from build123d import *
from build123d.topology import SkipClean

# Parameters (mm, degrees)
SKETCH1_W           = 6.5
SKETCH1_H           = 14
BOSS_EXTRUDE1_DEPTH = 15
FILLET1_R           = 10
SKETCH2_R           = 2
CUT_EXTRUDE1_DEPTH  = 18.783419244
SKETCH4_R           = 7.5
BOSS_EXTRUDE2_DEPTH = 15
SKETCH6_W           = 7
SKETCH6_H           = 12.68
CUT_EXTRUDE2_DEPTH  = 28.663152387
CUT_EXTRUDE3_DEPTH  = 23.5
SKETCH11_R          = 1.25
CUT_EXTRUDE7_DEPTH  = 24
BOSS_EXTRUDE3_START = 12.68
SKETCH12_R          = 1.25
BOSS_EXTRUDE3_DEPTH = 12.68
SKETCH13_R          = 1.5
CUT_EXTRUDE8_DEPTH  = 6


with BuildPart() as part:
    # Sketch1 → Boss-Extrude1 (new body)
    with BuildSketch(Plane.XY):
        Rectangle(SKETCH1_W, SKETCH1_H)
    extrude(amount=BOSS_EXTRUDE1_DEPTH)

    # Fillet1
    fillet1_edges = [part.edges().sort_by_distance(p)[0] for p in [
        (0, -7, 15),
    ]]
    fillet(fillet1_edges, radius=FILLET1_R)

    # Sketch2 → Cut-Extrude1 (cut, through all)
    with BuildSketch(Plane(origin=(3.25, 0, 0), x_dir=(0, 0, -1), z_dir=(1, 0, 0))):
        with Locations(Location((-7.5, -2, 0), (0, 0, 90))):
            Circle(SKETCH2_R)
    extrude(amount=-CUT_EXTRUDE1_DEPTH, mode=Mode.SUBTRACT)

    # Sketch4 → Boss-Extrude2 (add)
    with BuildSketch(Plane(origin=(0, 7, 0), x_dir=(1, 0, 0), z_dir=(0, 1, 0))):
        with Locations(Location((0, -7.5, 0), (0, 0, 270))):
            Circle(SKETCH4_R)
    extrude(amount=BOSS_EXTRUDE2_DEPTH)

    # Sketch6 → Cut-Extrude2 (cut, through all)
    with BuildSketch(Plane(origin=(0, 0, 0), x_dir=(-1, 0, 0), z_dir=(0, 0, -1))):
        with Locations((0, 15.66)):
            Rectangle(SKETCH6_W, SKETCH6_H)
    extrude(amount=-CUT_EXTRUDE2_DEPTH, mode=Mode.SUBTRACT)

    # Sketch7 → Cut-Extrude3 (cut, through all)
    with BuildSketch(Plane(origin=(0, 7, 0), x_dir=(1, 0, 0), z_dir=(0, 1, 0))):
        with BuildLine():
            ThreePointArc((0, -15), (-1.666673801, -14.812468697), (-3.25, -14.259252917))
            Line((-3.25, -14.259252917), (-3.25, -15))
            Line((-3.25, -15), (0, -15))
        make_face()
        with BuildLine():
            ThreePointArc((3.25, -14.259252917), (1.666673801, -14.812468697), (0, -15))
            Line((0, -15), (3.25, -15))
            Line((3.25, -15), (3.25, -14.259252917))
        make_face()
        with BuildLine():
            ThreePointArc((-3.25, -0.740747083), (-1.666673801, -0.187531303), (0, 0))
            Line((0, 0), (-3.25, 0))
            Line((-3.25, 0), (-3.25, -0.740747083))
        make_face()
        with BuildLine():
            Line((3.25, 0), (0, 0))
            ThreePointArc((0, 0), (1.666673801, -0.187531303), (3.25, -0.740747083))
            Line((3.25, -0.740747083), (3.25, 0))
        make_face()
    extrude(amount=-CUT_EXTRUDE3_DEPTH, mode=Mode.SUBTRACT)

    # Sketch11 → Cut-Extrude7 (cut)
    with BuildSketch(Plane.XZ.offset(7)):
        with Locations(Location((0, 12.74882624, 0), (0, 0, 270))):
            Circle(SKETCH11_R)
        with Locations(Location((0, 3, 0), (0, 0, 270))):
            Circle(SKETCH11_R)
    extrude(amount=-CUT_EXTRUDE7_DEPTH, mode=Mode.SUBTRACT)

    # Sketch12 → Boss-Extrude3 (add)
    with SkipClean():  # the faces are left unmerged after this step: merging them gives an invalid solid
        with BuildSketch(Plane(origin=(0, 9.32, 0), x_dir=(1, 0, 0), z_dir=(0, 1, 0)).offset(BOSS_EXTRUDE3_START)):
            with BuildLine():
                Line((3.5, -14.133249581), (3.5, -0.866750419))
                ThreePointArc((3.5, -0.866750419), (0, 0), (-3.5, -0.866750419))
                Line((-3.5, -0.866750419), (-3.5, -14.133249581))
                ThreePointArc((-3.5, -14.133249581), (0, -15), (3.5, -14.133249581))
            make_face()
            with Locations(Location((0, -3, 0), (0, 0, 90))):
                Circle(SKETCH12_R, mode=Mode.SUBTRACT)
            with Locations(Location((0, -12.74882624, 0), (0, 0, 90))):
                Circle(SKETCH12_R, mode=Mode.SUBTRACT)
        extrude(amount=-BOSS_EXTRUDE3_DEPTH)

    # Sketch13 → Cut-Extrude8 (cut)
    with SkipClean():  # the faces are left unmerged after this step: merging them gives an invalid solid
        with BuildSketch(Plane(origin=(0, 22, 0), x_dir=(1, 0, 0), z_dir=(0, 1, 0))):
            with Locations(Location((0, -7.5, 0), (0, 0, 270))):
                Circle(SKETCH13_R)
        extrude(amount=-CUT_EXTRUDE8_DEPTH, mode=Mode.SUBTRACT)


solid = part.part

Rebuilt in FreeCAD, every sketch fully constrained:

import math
import FreeCAD as App
import Part
import Sketcher
from FreeCAD import Vector


def edges_at(feature, points):
    """Names of the edges that pass closest to the given points."""
    edges = feature.Shape.Edges
    near = lambda p: min(range(len(edges)), key=lambda i: edges[i].distToShape(Part.Vertex(*p))[0])
    return sorted({f"Edge{near(p) + 1}" for p in points})


def add_polygon(sketch, points):
    """Adds a closed chain of lines whose ends are joined by coincident constraints."""
    first, n = sketch.GeometryCount, len(points)
    for a, b in zip(points, points[1:] + points[:1]):
        sketch.addGeometry(Part.LineSegment(App.Vector(*a, 0), App.Vector(*b, 0)), False)
    for i in range(n):
        sketch.addConstraint(Sketcher.Constraint("Coincident", first + i, 2, first + (i + 1) % n, 1))

doc = App.newDocument("Part")
body = doc.addObject("PartDesign::Body", "Body")

# Sketch on XY plane
sketch1 = doc.addObject("Sketcher::SketchObject", "Sketch")
body.addObject(sketch1)
sketch1.AttachmentSupport = (doc.XY_Plane, [""])
sketch1.MapMode = "FlatFace"
add_polygon(sketch1, [(-3.25, 7), (-3.25, -7), (3.25, -7), (3.25, 7)])  # lines 0-3
sketch1.addConstraint([
    Sketcher.Constraint("Vertical", 0),
    Sketcher.Constraint("Horizontal", 1),
    Sketcher.Constraint("Vertical", 2),
    Sketcher.Constraint("Horizontal", 3),
    Sketcher.Constraint("Symmetric", 0, 2, 2, 2, -1, 1),
    Sketcher.Constraint("DistanceY", 0, 2, 0, 1, 14.0),
    Sketcher.Constraint("DistanceX", 1, 1, 1, 2, 6.5),
])
pad1 = doc.addObject("PartDesign::Pad", "Pad")
body.addObject(pad1)
pad1.Profile = sketch1
pad1.Length = 15
doc.recompute()

fillet = doc.addObject("PartDesign::Fillet", "Fillet")
body.addObject(fillet)
fillet.Base = (pad1, edges_at(pad1, [(0, -7, 15)]))
fillet.Radius = 10

# Sketch on YZ plane
sketch2 = doc.addObject("Sketcher::SketchObject", "Sketch001")
body.addObject(sketch2)
sketch2.AttachmentSupport = (doc.YZ_Plane, [""])
sketch2.MapMode = "FlatFace"
sketch2.AttachmentOffset = App.Placement(Vector(0, 0, 3.25), App.Rotation())
sketch2.addGeometry(Part.Circle(Vector(-2, 7.5, 0), Vector(0, 0, 1), 2), False)
sketch2.addConstraint([
    Sketcher.Constraint("Diameter", 0, 4.0),
    Sketcher.Constraint("DistanceX", 0, 3, -1, 1, 2.0),
    Sketcher.Constraint("DistanceY", -1, 1, 0, 3, 7.5),
])
pocket1 = doc.addObject("PartDesign::Pocket", "Pocket")
body.addObject(pocket1)
pocket1.Profile = sketch2
pocket1.Type = "ThroughAll"

# Sketch on XZ plane
sketch3 = doc.addObject("Sketcher::SketchObject", "Sketch002")
body.addObject(sketch3)
sketch3.AttachmentSupport = (doc.XZ_Plane, [""])
sketch3.MapMode = "FlatFace"
sketch3.AttachmentOffset = App.Placement(Vector(0, 0, -7), App.Rotation())
sketch3.addGeometry(Part.Circle(Vector(0, 7.5, 0), Vector(0, 0, 1), 7.5), False)
sketch3.addConstraint([
    Sketcher.Constraint("PointOnObject", 0, 3, -2),
    Sketcher.Constraint("Diameter", 0, 15.0),
    Sketcher.Constraint("DistanceY", -1, 1, 0, 3, 7.5),
])
pad2 = doc.addObject("PartDesign::Pad", "Pad001")
body.addObject(pad2)
pad2.Profile = sketch3
pad2.Length = 15
pad2.Reversed = True

# Sketch on XY plane
sketch4 = doc.addObject("Sketcher::SketchObject", "Sketch003")
body.addObject(sketch4)
sketch4.AttachmentSupport = (doc.XY_Plane, [""])
sketch4.MapMode = "FlatFace"
add_polygon(sketch4, [(3.5, 22), (3.5, 9.32), (-3.5, 9.32), (-3.5, 22)])  # lines 0-3
sketch4.addConstraint([
    Sketcher.Constraint("Vertical", 0),
    Sketcher.Constraint("Horizontal", 1),
    Sketcher.Constraint("Vertical", 2),
    Sketcher.Constraint("Horizontal", 3),
    Sketcher.Constraint("DistanceX", 1, 2, 1, 1, 7.0),
    Sketcher.Constraint("DistanceY", -1, 1, 2, 2, 22.0),
    Sketcher.Constraint("DistanceY", 0, 2, 0, 1, 12.68),
    Sketcher.Constraint("DistanceX", -1, 1, 0, 2, 3.5),
])
pocket2 = doc.addObject("PartDesign::Pocket", "Pocket001")
body.addObject(pocket2)
pocket2.Profile = sketch4
pocket2.Type = "ThroughAll"
pocket2.Reversed = True

# Sketch on XZ plane
sketch5 = doc.addObject("Sketcher::SketchObject", "Sketch004")
body.addObject(sketch5)
sketch5.AttachmentSupport = (doc.XZ_Plane, [""])
sketch5.MapMode = "FlatFace"
sketch5.AttachmentOffset = App.Placement(Vector(0, 0, -7), App.Rotation())
sketch5.addGeometry([
    Part.ArcOfCircle(Part.Circle(Vector(0, 7.5, 0), Vector(0, 0, 1), 7.5), math.radians(90), math.radians(115.679289)),  # 0
    Part.LineSegment(Vector(-3.25, 14.259253, 0), Vector(-3.25, 15, 0)),  # 1
    Part.LineSegment(Vector(-3.25, 15, 0), Vector(0, 15, 0)),  # 2
    Part.ArcOfCircle(Part.Circle(Vector(0, 7.5, 0), Vector(0, 0, 1), 7.5), math.radians(64.320711), math.radians(90)),  # 3
    Part.LineSegment(Vector(0, 15, 0), Vector(3.25, 15, 0)),  # 4
    Part.LineSegment(Vector(3.25, 15, 0), Vector(3.25, 14.259253, 0)),  # 5
    Part.ArcOfCircle(Part.Circle(Vector(0, 7.5, 0), Vector(0, 0, 1), 7.5), math.radians(-115.679289), math.radians(-90)),  # 6
    Part.LineSegment(Vector(0, 0, 0), Vector(-3.25, 0, 0)),  # 7
    Part.LineSegment(Vector(-3.25, 0, 0), Vector(-3.25, 0.740747, 0)),  # 8
    Part.LineSegment(Vector(3.25, 0, 0), Vector(0, 0, 0)),  # 9
    Part.ArcOfCircle(Part.Circle(Vector(0, 7.5, 0), Vector(0, 0, 1), 7.5), math.radians(-90), math.radians(-64.320711)),  # 10
    Part.LineSegment(Vector(3.25, 0.740747, 0), Vector(3.25, 0, 0)),  # 11
], False)
sketch5.addConstraint([
    Sketcher.Constraint("Coincident", 0, 2, 1, 1),
    Sketcher.Constraint("Coincident", 1, 2, 2, 1),
    Sketcher.Constraint("Tangent", 2, 2, 0, 1),
    Sketcher.Constraint("Tangent", 3, 2, 4, 1),
    Sketcher.Constraint("Coincident", 4, 2, 5, 1),
    Sketcher.Constraint("Coincident", 5, 2, 3, 1),
    Sketcher.Constraint("Tangent", 6, 2, 7, 1),
    Sketcher.Constraint("Coincident", 7, 2, 8, 1),
    Sketcher.Constraint("Coincident", 8, 2, 6, 1),
    Sketcher.Constraint("Tangent", 9, 2, 10, 1),
    Sketcher.Constraint("Coincident", 10, 2, 11, 1),
    Sketcher.Constraint("Coincident", 11, 2, 9, 1),
    Sketcher.Constraint("Vertical", 1),
    Sketcher.Constraint("Horizontal", 2),
    Sketcher.Constraint("Horizontal", 4),
    Sketcher.Constraint("Vertical", 5),
    Sketcher.Constraint("Horizontal", 7),
    Sketcher.Constraint("Vertical", 8),
    Sketcher.Constraint("Horizontal", 9),
    Sketcher.Constraint("Vertical", 11),
    Sketcher.Constraint("Coincident", 6, 2, -1, 1),
    Sketcher.Constraint("Coincident", 9, 2, -1, 1),
    Sketcher.Constraint("Coincident", 3, 3, 0, 3),
    Sketcher.Constraint("Coincident", 6, 3, 0, 3),
    Sketcher.Constraint("Equal", 0, 3),
    Sketcher.Constraint("Equal", 3, 6),
    Sketcher.Constraint("Equal", 6, 10),
    Sketcher.Constraint("Horizontal", 0, 2, 5, 2),
    Sketcher.Constraint("Horizontal", 8, 2, 10, 2),
    Sketcher.Constraint("Vertical", 1, 2, 7, 2),
    Sketcher.Constraint("Radius", 0, 7.5),
    Sketcher.Constraint("DistanceX", 2, 1, 2, 2, 3.25),
])
pocket3 = doc.addObject("PartDesign::Pocket", "Pocket002")
body.addObject(pocket3)
pocket3.Profile = sketch5
pocket3.Type = "ThroughAll"
pocket3.Reversed = True

# Sketch on XZ plane
sketch6 = doc.addObject("Sketcher::SketchObject", "Sketch005")
body.addObject(sketch6)
sketch6.AttachmentSupport = (doc.XZ_Plane, [""])
sketch6.MapMode = "FlatFace"
sketch6.AttachmentOffset = App.Placement(Vector(0, 0, 7), App.Rotation())
sketch6.addGeometry([
    Part.Circle(Vector(0, 12.748826, 0), Vector(0, 0, 1), 1.25),
    Part.Circle(Vector(0, 3, 0), Vector(0, 0, 1), 1.25),
], False)
sketch6.addConstraint([
    Sketcher.Constraint("Equal", 0, 1),
    Sketcher.Constraint("PointOnObject", 0, 3, -2),
    Sketcher.Constraint("PointOnObject", 1, 3, -2),
    Sketcher.Constraint("Diameter", 0, 2.5),
    Sketcher.Constraint("DistanceY", -1, 1, 1, 3, 3.0),
    Sketcher.Constraint("DistanceY", -1, 1, 0, 3, 12.748826),
])
pocket4 = doc.addObject("PartDesign::Pocket", "Pocket003")
body.addObject(pocket4)
pocket4.Profile = sketch6
pocket4.Length = 24

# Sketch on XZ plane
sketch7 = doc.addObject("Sketcher::SketchObject", "Sketch006")
body.addObject(sketch7)
sketch7.AttachmentSupport = (doc.XZ_Plane, [""])
sketch7.MapMode = "FlatFace"
sketch7.AttachmentOffset = App.Placement(Vector(0, 0, -22), App.Rotation())
sketch7.addGeometry([
    Part.LineSegment(Vector(3.5, 14.13325, 0), Vector(3.5, 0.86675, 0)),  # 0
    Part.ArcOfCircle(Part.Circle(Vector(0, 7.5, 0), Vector(0, 0, 1), 7.5), math.radians(-117.818139), math.radians(-62.181861)),  # 1
    Part.LineSegment(Vector(-3.5, 0.86675, 0), Vector(-3.5, 14.13325, 0)),  # 2
    Part.ArcOfCircle(Part.Circle(Vector(0, 7.5, 0), Vector(0, 0, 1), 7.5), math.radians(62.181861), math.radians(117.818139)),  # 3
    Part.Circle(Vector(0, 12.748826, 0), Vector(0, 0, 1), 1.25),  # 4
    Part.Circle(Vector(0, 3, 0), Vector(0, 0, 1), 1.25),  # 5
], False)
sketch7.addConstraint([
    Sketcher.Constraint("Coincident", 0, 2, 1, 2),
    Sketcher.Constraint("Coincident", 1, 1, 2, 1),
    Sketcher.Constraint("Coincident", 2, 2, 3, 2),
    Sketcher.Constraint("Coincident", 3, 1, 0, 1),
    Sketcher.Constraint("Vertical", 0),
    Sketcher.Constraint("Vertical", 2),
    Sketcher.Constraint("Coincident", 3, 3, 1, 3),
    Sketcher.Constraint("Equal", 1, 3),
    Sketcher.Constraint("Equal", 4, 5),
    Sketcher.Constraint("Symmetric", 0, 2, 1, 1, -2),
    Sketcher.Constraint("PointOnObject", 4, 3, -2),
    Sketcher.Constraint("PointOnObject", 5, 3, -2),
    Sketcher.Constraint("Diameter", 4, 2.5),
    Sketcher.Constraint("Radius", 1, 7.5),
    Sketcher.Constraint("DistanceY", -1, 1, 5, 3, 3.0),
    Sketcher.Constraint("DistanceX", 1, 1, 0, 2, 7.0),
    Sketcher.Constraint("DistanceY", -1, 1, 1, 3, 7.5),
    Sketcher.Constraint("DistanceY", -1, 1, 4, 3, 12.748826),
])
pad3 = doc.addObject("PartDesign::Pad", "Pad002")
body.addObject(pad3)
pad3.Profile = sketch7
pad3.Length = 12.68

# Sketch on XZ plane
sketch8 = doc.addObject("Sketcher::SketchObject", "Sketch007")
body.addObject(sketch8)
sketch8.AttachmentSupport = (doc.XZ_Plane, [""])
sketch8.MapMode = "FlatFace"
sketch8.AttachmentOffset = App.Placement(Vector(0, 0, -22), App.Rotation())
sketch8.addGeometry(Part.Circle(Vector(0, 7.5, 0), Vector(0, 0, 1), 1.5), False)
sketch8.addConstraint([
    Sketcher.Constraint("PointOnObject", 0, 3, -2),
    Sketcher.Constraint("Diameter", 0, 3.0),
    Sketcher.Constraint("DistanceY", -1, 1, 0, 3, 7.5),
])
pocket5 = doc.addObject("PartDesign::Pocket", "Pocket004")
body.addObject(pocket5)
pocket5.Profile = sketch8
pocket5.Length = 6
pocket5.Reversed = True

doc.recompute()
